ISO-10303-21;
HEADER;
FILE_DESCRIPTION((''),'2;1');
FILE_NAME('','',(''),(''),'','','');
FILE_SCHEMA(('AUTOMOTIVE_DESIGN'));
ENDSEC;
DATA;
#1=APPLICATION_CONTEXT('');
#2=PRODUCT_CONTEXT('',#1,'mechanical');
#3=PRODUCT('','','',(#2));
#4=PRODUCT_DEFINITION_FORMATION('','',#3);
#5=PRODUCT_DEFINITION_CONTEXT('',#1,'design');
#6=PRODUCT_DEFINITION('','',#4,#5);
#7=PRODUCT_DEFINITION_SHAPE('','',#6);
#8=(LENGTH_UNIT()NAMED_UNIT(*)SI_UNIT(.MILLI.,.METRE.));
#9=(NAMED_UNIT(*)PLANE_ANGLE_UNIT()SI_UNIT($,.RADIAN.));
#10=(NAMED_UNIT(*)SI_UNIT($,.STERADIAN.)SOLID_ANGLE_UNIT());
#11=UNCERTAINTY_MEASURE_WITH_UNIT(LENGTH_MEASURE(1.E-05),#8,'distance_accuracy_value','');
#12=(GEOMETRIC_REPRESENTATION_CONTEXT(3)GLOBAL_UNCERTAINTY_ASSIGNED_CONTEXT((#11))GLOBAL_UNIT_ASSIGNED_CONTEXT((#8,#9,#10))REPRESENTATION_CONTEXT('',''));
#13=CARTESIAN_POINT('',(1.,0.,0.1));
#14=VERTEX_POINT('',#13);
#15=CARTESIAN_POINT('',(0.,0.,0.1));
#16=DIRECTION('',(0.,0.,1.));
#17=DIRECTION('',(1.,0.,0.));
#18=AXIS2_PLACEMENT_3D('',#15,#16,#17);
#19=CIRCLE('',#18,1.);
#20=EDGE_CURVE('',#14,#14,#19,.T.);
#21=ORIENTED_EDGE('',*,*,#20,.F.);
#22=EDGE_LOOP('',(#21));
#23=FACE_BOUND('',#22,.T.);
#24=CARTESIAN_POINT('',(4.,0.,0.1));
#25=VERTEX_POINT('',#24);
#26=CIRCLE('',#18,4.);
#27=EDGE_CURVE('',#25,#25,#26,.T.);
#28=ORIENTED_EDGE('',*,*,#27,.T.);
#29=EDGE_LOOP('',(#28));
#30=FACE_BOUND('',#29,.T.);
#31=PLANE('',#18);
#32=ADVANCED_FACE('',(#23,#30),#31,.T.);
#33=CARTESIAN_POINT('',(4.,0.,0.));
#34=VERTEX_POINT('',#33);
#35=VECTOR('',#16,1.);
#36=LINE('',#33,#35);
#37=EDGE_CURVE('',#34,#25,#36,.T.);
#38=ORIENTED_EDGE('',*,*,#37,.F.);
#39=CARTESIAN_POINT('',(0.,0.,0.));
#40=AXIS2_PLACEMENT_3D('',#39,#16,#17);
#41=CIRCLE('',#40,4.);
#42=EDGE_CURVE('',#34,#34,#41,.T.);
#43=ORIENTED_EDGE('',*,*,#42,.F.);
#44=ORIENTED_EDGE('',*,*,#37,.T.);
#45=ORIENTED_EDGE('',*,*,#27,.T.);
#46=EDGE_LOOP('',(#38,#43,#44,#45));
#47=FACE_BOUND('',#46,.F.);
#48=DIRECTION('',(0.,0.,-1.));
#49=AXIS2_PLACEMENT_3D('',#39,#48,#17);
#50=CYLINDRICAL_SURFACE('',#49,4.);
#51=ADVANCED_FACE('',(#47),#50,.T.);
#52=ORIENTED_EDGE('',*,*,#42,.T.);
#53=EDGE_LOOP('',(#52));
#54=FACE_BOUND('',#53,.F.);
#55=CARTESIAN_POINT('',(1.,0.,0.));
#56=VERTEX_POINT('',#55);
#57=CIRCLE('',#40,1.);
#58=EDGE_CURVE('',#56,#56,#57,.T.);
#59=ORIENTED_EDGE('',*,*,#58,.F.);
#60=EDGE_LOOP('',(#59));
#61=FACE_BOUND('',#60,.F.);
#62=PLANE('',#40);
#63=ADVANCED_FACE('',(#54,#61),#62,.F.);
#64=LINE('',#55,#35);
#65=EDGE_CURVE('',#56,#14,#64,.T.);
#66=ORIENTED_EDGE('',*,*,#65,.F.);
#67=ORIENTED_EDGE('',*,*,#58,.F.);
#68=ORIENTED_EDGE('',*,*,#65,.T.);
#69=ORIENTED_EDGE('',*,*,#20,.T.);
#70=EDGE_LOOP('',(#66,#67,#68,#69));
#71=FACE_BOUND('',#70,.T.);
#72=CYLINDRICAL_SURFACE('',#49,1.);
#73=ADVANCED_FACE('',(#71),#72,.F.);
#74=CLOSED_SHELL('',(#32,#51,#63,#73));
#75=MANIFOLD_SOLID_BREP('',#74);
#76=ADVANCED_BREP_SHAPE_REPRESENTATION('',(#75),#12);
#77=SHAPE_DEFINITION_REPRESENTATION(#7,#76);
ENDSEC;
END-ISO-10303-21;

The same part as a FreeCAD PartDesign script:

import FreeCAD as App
import Part
import Sketcher
Q = App.Units.Quantity

doc = App.newDocument("Part")
body = doc.addObject("PartDesign::Body", "Body")

# Sketch on XY plane
sketch1 = body.newObject("Sketcher::SketchObject", "Sketch")
sketch1.AttachmentSupport = (doc.getObject("XY_Plane"), [""])
sketch1.MapMode = "FlatFace"
sketch1.addGeometry([
    Part.Circle(App.Vector(0, 0, 0), App.Vector(0, 0, 1), 4),
    Part.Circle(App.Vector(0, 0, 0), App.Vector(0, 0, 1), 1),
], False)
sketch1.addConstraint([
    Sketcher.Constraint("Coincident", 0, 3, -1, 1),
    Sketcher.Constraint("Coincident", 1, 3, -1, 1),
    Sketcher.Constraint("Diameter", 0, Q("8 mm")),
    Sketcher.Constraint("Diameter", 1, Q("2 mm")),
])
pad1 = body.newObject("PartDesign::Pad", "Pad")
pad1.Profile = sketch1
pad1.Length = 0.1

doc.recompute()
